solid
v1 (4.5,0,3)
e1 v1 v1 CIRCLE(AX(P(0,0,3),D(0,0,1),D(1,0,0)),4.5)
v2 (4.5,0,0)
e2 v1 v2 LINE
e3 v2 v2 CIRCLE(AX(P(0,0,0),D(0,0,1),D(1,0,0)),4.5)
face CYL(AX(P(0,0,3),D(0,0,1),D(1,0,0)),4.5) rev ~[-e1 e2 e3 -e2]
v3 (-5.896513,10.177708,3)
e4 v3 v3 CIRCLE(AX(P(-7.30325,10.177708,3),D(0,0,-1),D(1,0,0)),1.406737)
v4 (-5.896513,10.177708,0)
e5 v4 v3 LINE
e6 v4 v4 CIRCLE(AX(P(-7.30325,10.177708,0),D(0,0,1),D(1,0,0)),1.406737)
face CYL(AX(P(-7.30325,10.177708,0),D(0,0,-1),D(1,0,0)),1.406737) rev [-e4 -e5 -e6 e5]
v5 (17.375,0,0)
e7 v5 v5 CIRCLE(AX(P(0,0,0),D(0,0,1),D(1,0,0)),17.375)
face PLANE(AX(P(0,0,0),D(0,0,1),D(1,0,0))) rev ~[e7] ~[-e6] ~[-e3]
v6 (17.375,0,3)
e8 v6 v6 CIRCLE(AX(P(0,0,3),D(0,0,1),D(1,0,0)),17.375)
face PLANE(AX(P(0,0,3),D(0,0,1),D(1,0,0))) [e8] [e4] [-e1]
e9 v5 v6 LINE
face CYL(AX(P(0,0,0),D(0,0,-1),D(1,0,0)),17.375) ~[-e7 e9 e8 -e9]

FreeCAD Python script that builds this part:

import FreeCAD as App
import Part
import Sketcher

doc = App.newDocument("Part")
body = doc.addObject("PartDesign::Body", "Body")

# Sketch on XY plane
sketch1 = body.newObject("Sketcher::SketchObject", "Sketch")
sketch1.AttachmentSupport = (doc.getObject("XY_Plane"), [""])
sketch1.MapMode = "FlatFace"
sketch1.addGeometry(Part.Circle(App.Vector(0, 0, 0), App.Vector(0, 0, 1), 17), False)
sketch1.addConstraint(Sketcher.Constraint("Coincident", 0, 3, -1, 1))
sketch1.addConstraint(Sketcher.Constraint("Diameter", 0, 34.75))
pad1 = body.newObject("PartDesign::Pad", "Pad")
pad1.Profile = sketch1
pad1.Length = 3

# Sketch on XY plane
sketch2 = body.newObject("Sketcher::SketchObject", "Sketch001")
sketch2.AttachmentSupport = (doc.getObject("XY_Plane"), [""])
sketch2.MapMode = "FlatFace"
sketch2.AttachmentOffset = App.Placement(App.Vector(0, 0, 3), App.Rotation())
sketch2.addGeometry(Part.Circle(App.Vector(0, 0, 0), App.Vector(0, 0, 1), 4.5), False)
sketch2.addConstraint(Sketcher.Constraint("Coincident", 0, 3, -1, 1))
sketch2.addConstraint(Sketcher.Constraint("Diameter", 0, 9.0))
pocket1 = body.newObject("PartDesign::Pocket", "Pocket")
pocket1.Profile = sketch2
pocket1.Length = 25.4

# Sketch on XY plane
sketch3 = body.newObject("Sketcher::SketchObject", "Sketch002")
sketch3.AttachmentSupport = (doc.getObject("XY_Plane"), [""])
sketch3.MapMode = "FlatFace"
sketch3.addGeometry(Part.Circle(App.Vector(-7.3, 10.2, 0), App.Vector(0, 0, 1), 1.4), False)
sketch3.addConstraint(Sketcher.Constraint("Diameter", 0, 2.813474))
sketch3.addConstraint(Sketcher.Constraint("DistanceX", 0, 3, -1, 1, 7.30325))
sketch3.addConstraint(Sketcher.Constraint("DistanceY", -1, 1, 0, 3, 10.177708))
pocket2 = body.newObject("PartDesign::Pocket", "Pocket001")
pocket2.Profile = sketch3
pocket2.Length = 25
pocket2.Reversed = True

doc.recompute()
